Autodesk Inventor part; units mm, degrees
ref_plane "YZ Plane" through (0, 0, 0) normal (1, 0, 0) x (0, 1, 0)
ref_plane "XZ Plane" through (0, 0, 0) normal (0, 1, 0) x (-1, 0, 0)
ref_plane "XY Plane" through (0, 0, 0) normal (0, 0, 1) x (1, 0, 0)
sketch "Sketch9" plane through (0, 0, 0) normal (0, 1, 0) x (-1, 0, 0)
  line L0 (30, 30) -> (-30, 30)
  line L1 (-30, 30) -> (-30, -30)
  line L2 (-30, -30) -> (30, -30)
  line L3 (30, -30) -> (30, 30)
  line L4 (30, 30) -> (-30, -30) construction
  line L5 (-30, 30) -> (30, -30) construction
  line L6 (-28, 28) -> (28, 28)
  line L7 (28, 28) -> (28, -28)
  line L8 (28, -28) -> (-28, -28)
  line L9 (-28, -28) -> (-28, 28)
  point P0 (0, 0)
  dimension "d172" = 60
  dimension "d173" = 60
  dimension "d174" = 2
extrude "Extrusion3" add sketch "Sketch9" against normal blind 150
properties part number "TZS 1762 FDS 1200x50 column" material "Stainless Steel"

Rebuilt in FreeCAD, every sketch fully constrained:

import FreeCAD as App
import Part
import Sketcher

doc = App.newDocument("Part")
body = doc.addObject("PartDesign::Body", "Body")

# Sketch on XZ plane
sketch1 = doc.addObject("Sketcher::SketchObject", "Sketch")
body.addObject(sketch1)
sketch1.AttachmentSupport = (doc.XZ_Plane, [""])
sketch1.MapMode = "FlatFace"
sketch1.addGeometry([
    Part.LineSegment(App.Vector(-30, -30, 0), App.Vector(-30, 30, 0)),  # 0
    Part.LineSegment(App.Vector(-30, 30, 0), App.Vector(30, 30, 0)),  # 1
    Part.LineSegment(App.Vector(30, 30, 0), App.Vector(30, -30, 0)),  # 2
    Part.LineSegment(App.Vector(30, -30, 0), App.Vector(-30, -30, 0)),  # 3
    Part.LineSegment(App.Vector(28, -28, 0), App.Vector(28, 28, 0)),  # 4
    Part.LineSegment(App.Vector(28, 28, 0), App.Vector(-28, 28, 0)),  # 5
    Part.LineSegment(App.Vector(-28, 28, 0), App.Vector(-28, -28, 0)),  # 6
    Part.LineSegment(App.Vector(-28, -28, 0), App.Vector(28, -28, 0)),  # 7
], False)
sketch1.addConstraint([
    Sketcher.Constraint("Coincident", 0, 2, 1, 1),
    Sketcher.Constraint("Coincident", 1, 2, 2, 1),
    Sketcher.Constraint("Coincident", 2, 2, 3, 1),
    Sketcher.Constraint("Coincident", 3, 2, 0, 1),
    Sketcher.Constraint("Coincident", 4, 2, 5, 1),
    Sketcher.Constraint("Coincident", 5, 2, 6, 1),
    Sketcher.Constraint("Coincident", 6, 2, 7, 1),
    Sketcher.Constraint("Coincident", 7, 2, 4, 1),
    Sketcher.Constraint("Vertical", 0),
    Sketcher.Constraint("Horizontal", 1),
    Sketcher.Constraint("Vertical", 2),
    Sketcher.Constraint("Horizontal", 3),
    Sketcher.Constraint("Vertical", 4),
    Sketcher.Constraint("Horizontal", 5),
    Sketcher.Constraint("Vertical", 6),
    Sketcher.Constraint("Horizontal", 7),
    Sketcher.Constraint("Symmetric", 0, 2, 2, 2, -1, 1),
    Sketcher.Constraint("Symmetric", 4, 2, 6, 2, -1, 1),
    Sketcher.Constraint("Equal", 3, 0),
    Sketcher.Constraint("Equal", 7, 4),
    Sketcher.Constraint("DistanceX", 1, 1, 1, 2, 60.0),
    Sketcher.Constraint("DistanceX", 4, 2, 1, 2, 2.0),
])
pad1 = doc.addObject("PartDesign::Pad", "Pad")
body.addObject(pad1)
pad1.Profile = sketch1
pad1.Length = 150

doc.recompute()
